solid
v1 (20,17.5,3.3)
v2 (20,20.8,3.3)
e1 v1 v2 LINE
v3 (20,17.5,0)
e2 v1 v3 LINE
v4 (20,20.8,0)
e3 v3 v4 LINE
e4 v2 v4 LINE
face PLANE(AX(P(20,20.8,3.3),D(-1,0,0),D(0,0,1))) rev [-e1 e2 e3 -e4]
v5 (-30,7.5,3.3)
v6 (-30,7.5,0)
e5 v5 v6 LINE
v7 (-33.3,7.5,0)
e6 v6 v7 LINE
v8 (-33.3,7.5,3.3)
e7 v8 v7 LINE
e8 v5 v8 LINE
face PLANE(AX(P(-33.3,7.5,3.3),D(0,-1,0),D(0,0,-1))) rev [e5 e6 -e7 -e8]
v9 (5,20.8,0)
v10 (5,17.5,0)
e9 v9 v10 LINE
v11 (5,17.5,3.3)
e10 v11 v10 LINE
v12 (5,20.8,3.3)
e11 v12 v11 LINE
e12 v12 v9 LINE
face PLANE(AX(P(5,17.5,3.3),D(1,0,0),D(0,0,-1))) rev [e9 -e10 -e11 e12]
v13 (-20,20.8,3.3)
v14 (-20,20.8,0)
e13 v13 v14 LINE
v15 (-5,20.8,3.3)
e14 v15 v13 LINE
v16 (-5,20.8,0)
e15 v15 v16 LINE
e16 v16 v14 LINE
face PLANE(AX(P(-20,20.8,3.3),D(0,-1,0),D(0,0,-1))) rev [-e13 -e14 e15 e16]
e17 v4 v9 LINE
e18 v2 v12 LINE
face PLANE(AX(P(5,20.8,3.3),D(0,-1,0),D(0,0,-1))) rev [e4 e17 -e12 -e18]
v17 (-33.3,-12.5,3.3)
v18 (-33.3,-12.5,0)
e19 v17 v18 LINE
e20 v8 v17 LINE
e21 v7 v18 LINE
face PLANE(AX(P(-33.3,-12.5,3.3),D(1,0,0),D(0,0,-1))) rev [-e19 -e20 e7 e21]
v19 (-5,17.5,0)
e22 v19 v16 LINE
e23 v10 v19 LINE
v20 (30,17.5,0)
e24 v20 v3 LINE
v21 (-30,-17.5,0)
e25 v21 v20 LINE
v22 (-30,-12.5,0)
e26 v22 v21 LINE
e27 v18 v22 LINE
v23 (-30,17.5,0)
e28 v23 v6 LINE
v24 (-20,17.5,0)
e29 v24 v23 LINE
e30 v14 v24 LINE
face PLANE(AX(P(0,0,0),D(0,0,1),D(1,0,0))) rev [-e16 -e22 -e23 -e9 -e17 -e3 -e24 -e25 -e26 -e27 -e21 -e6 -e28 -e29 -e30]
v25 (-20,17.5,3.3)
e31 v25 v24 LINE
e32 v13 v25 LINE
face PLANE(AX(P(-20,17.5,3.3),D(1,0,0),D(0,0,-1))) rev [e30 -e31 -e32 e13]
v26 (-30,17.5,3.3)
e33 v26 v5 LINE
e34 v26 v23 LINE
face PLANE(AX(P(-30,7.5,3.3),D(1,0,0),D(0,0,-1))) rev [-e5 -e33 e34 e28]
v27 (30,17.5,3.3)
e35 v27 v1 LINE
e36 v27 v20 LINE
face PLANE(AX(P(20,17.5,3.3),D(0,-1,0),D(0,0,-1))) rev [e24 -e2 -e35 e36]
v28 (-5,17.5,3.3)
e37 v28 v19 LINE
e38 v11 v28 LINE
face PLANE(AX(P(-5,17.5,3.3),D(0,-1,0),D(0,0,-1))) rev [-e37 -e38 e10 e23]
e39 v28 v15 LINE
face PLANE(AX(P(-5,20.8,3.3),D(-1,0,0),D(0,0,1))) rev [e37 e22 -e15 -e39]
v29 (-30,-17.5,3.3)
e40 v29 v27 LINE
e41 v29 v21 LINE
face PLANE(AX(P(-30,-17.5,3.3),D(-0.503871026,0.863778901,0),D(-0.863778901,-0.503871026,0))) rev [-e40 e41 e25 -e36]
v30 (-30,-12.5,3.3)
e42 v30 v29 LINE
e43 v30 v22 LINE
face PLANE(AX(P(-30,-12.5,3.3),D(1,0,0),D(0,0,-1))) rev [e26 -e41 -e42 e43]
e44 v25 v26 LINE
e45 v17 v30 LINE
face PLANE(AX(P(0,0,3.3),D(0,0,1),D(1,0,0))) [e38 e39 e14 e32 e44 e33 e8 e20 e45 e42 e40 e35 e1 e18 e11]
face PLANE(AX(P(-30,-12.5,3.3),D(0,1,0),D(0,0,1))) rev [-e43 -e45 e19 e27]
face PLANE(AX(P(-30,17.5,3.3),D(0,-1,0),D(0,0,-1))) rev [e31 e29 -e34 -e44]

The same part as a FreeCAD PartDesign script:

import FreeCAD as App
import Part
import Sketcher
Q = App.Units.Quantity


def add_polygon(sketch, points):
    """Adds a closed chain of lines whose ends are joined by coincident constraints."""
    first, n = sketch.GeometryCount, len(points)
    for a, b in zip(points, points[1:] + points[:1]):
        sketch.addGeometry(Part.LineSegment(App.Vector(*a, 0), App.Vector(*b, 0)), False)
    for i in range(n):
        sketch.addConstraint(Sketcher.Constraint("Coincident", first + i, 2, first + (i + 1) % n, 1))

doc = App.newDocument("Part")
params = doc.addObject("Spreadsheet::Sheet", "Params")
for row, (alias, value) in enumerate([
    ("sketch1_width", "10 mm"),
    ("sketch1_width2", "15 mm"),
    ("sketch1_height", "20 mm"),
    ("sketch1_height2", "5 mm"),
    ("sketch1_width3", "3.3 mm"),
    ("pad1_length", "3.3 mm"),
], start=1):
    params.set(f"A{row}", alias)
    params.set(f"B{row}", "=" + value)
    params.setAlias(f"B{row}", alias)

body = doc.addObject("PartDesign::Body", "Body")

sketch1 = body.newObject("Sketcher::SketchObject", "Sketch")
sketch1.AttachmentSupport = (doc.getObject("XY_Plane"), [""])
sketch1.MapMode = "FlatFace"
add_polygon(sketch1, [(-30, -17.5), (30, 17.5), (20, 17.5), (20, 20.8), (5, 20.8), (5, 17.5), (-5, 17.5), (-5, 20.8), (-20, 20.8), (-20, 17.5), (-30, 17.5), (-30, 7.5), (-33.3, 7.5), (-33.3, -12.5), (-30, -12.5)])
sketch1.addConstraint([
    Sketcher.Constraint("Horizontal", 1),
    Sketcher.Constraint("Vertical", 2),
    Sketcher.Constraint("Horizontal", 3),
    Sketcher.Constraint("Vertical", 4),
    Sketcher.Constraint("Horizontal", 5),
    Sketcher.Constraint("Vertical", 6),
    Sketcher.Constraint("Horizontal", 7),
    Sketcher.Constraint("Vertical", 8),
    Sketcher.Constraint("Horizontal", 9),
    Sketcher.Constraint("Vertical", 10),
    Sketcher.Constraint("Horizontal", 11),
    Sketcher.Constraint("Vertical", 12),
    Sketcher.Constraint("Horizontal", 13),
    Sketcher.Constraint("Vertical", 14),
    Sketcher.Constraint("Symmetric", 0, 2, 14, 2, -1, 1),
    Sketcher.Constraint("Symmetric", 3, 2, 6, 2, -2),
    Sketcher.Constraint("Symmetric", 1, 2, 8, 2, -2),
    Sketcher.Constraint("Horizontal", 1, 2, 4, 2),
    Sketcher.Constraint("Vertical", 10, 2, 13, 2),
    Sketcher.Constraint("Equal", 1, 5),
    Sketcher.Constraint("Equal", 13, 2),
    Sketcher.Constraint("Equal", 9, 10),
    Sketcher.Constraint("DistanceX", 1, 2, 1, 1, Q("10 mm")),
    Sketcher.Constraint("DistanceX", 3, 2, 3, 1, Q("15 mm")),
    Sketcher.Constraint("DistanceY", 12, 2, 12, 1, Q("20 mm")),
    Sketcher.Constraint("DistanceY", 14, 2, 14, 1, Q("5 mm")),
    Sketcher.Constraint("DistanceX", 11, 2, 11, 1, Q("3.3 mm")),
])
sketch1.setExpression("Constraints[37]", "Params.sketch1_width")
sketch1.setExpression("Constraints[38]", "Params.sketch1_width2")
sketch1.setExpression("Constraints[39]", "Params.sketch1_height")
sketch1.setExpression("Constraints[40]", "Params.sketch1_height2")
sketch1.setExpression("Constraints[41]", "Params.sketch1_width3")
pad1 = body.newObject("PartDesign::Pad", "Pad")
pad1.Profile = sketch1
pad1.setExpression("Length", "Params.pad1_length")

doc.recompute()
